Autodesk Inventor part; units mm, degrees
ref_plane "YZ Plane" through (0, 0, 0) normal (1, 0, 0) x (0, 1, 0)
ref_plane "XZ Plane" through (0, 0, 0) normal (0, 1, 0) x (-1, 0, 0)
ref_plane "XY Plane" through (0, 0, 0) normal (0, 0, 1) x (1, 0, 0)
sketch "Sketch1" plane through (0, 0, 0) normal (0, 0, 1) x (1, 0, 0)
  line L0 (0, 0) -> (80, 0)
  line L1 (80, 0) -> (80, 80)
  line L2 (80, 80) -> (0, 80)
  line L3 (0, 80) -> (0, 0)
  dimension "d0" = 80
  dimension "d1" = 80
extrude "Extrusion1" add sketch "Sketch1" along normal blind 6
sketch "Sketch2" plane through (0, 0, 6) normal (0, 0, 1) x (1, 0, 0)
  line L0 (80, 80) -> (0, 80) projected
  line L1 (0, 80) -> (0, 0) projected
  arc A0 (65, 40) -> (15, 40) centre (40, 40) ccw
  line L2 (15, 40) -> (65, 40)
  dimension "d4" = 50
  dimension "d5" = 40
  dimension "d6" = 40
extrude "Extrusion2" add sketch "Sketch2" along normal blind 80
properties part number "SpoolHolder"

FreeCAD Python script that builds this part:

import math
import FreeCAD as App
import Part
import Sketcher
from FreeCAD import Vector


def add_polygon(sketch, points):
    """Adds a closed chain of lines whose ends are joined by coincident constraints."""
    first, n = sketch.GeometryCount, len(points)
    for a, b in zip(points, points[1:] + points[:1]):
        sketch.addGeometry(Part.LineSegment(App.Vector(*a, 0), App.Vector(*b, 0)), False)
    for i in range(n):
        sketch.addConstraint(Sketcher.Constraint("Coincident", first + i, 2, first + (i + 1) % n, 1))

doc = App.newDocument("Part")
body = doc.addObject("PartDesign::Body", "Body")

# Sketch on XY plane
sketch1 = doc.addObject("Sketcher::SketchObject", "Sketch")
body.addObject(sketch1)
sketch1.AttachmentSupport = (doc.XY_Plane, [""])
sketch1.MapMode = "FlatFace"
add_polygon(sketch1, [(0, 80), (0, 0), (80, 0), (80, 80)])  # lines 0-3
sketch1.addConstraint(Sketcher.Constraint("Vertical", 0))
sketch1.addConstraint(Sketcher.Constraint("Horizontal", 1))
sketch1.addConstraint(Sketcher.Constraint("Vertical", 2))
sketch1.addConstraint(Sketcher.Constraint("Horizontal", 3))
sketch1.addConstraint(Sketcher.Constraint("Coincident", 0, 2, -1, 1))
sketch1.addConstraint(Sketcher.Constraint("Equal", 3, 0))
sketch1.addConstraint(Sketcher.Constraint("DistanceX", 1, 1, 1, 2, 80.0))
pad1 = doc.addObject("PartDesign::Pad", "Pad")
body.addObject(pad1)
pad1.Profile = sketch1
pad1.Length = 6

# Sketch on XY plane
sketch2 = doc.addObject("Sketcher::SketchObject", "Sketch001")
body.addObject(sketch2)
sketch2.AttachmentSupport = (doc.XY_Plane, [""])
sketch2.MapMode = "FlatFace"
sketch2.AttachmentOffset = App.Placement(Vector(0, 0, 6), App.Rotation())
sketch2.addGeometry(Part.LineSegment(Vector(15, 40, 0), Vector(65, 40, 0)), False)
sketch2.addGeometry(Part.ArcOfCircle(Part.Circle(Vector(40, 40, 0), Vector(0, 0, 1), 25), math.radians(0), math.radians(180)), False)
sketch2.addConstraint(Sketcher.Constraint("Coincident", 0, 1, 1, 2))
sketch2.addConstraint(Sketcher.Constraint("Coincident", 1, 1, 0, 2))
sketch2.addConstraint(Sketcher.Constraint("Horizontal", 0))
sketch2.addConstraint(Sketcher.Constraint("Horizontal", 1, 3, 0, 1))
sketch2.addConstraint(Sketcher.Constraint("Radius", 1, 25.0))
sketch2.addConstraint(Sketcher.Constraint("DistanceX", -1, 1, 1, 3, 40.0))
sketch2.addConstraint(Sketcher.Constraint("DistanceY", -1, 1, 1, 3, 40.0))
pad2 = doc.addObject("PartDesign::Pad", "Pad001")
body.addObject(pad2)
pad2.Profile = sketch2
pad2.Length = 80

doc.recompute()
